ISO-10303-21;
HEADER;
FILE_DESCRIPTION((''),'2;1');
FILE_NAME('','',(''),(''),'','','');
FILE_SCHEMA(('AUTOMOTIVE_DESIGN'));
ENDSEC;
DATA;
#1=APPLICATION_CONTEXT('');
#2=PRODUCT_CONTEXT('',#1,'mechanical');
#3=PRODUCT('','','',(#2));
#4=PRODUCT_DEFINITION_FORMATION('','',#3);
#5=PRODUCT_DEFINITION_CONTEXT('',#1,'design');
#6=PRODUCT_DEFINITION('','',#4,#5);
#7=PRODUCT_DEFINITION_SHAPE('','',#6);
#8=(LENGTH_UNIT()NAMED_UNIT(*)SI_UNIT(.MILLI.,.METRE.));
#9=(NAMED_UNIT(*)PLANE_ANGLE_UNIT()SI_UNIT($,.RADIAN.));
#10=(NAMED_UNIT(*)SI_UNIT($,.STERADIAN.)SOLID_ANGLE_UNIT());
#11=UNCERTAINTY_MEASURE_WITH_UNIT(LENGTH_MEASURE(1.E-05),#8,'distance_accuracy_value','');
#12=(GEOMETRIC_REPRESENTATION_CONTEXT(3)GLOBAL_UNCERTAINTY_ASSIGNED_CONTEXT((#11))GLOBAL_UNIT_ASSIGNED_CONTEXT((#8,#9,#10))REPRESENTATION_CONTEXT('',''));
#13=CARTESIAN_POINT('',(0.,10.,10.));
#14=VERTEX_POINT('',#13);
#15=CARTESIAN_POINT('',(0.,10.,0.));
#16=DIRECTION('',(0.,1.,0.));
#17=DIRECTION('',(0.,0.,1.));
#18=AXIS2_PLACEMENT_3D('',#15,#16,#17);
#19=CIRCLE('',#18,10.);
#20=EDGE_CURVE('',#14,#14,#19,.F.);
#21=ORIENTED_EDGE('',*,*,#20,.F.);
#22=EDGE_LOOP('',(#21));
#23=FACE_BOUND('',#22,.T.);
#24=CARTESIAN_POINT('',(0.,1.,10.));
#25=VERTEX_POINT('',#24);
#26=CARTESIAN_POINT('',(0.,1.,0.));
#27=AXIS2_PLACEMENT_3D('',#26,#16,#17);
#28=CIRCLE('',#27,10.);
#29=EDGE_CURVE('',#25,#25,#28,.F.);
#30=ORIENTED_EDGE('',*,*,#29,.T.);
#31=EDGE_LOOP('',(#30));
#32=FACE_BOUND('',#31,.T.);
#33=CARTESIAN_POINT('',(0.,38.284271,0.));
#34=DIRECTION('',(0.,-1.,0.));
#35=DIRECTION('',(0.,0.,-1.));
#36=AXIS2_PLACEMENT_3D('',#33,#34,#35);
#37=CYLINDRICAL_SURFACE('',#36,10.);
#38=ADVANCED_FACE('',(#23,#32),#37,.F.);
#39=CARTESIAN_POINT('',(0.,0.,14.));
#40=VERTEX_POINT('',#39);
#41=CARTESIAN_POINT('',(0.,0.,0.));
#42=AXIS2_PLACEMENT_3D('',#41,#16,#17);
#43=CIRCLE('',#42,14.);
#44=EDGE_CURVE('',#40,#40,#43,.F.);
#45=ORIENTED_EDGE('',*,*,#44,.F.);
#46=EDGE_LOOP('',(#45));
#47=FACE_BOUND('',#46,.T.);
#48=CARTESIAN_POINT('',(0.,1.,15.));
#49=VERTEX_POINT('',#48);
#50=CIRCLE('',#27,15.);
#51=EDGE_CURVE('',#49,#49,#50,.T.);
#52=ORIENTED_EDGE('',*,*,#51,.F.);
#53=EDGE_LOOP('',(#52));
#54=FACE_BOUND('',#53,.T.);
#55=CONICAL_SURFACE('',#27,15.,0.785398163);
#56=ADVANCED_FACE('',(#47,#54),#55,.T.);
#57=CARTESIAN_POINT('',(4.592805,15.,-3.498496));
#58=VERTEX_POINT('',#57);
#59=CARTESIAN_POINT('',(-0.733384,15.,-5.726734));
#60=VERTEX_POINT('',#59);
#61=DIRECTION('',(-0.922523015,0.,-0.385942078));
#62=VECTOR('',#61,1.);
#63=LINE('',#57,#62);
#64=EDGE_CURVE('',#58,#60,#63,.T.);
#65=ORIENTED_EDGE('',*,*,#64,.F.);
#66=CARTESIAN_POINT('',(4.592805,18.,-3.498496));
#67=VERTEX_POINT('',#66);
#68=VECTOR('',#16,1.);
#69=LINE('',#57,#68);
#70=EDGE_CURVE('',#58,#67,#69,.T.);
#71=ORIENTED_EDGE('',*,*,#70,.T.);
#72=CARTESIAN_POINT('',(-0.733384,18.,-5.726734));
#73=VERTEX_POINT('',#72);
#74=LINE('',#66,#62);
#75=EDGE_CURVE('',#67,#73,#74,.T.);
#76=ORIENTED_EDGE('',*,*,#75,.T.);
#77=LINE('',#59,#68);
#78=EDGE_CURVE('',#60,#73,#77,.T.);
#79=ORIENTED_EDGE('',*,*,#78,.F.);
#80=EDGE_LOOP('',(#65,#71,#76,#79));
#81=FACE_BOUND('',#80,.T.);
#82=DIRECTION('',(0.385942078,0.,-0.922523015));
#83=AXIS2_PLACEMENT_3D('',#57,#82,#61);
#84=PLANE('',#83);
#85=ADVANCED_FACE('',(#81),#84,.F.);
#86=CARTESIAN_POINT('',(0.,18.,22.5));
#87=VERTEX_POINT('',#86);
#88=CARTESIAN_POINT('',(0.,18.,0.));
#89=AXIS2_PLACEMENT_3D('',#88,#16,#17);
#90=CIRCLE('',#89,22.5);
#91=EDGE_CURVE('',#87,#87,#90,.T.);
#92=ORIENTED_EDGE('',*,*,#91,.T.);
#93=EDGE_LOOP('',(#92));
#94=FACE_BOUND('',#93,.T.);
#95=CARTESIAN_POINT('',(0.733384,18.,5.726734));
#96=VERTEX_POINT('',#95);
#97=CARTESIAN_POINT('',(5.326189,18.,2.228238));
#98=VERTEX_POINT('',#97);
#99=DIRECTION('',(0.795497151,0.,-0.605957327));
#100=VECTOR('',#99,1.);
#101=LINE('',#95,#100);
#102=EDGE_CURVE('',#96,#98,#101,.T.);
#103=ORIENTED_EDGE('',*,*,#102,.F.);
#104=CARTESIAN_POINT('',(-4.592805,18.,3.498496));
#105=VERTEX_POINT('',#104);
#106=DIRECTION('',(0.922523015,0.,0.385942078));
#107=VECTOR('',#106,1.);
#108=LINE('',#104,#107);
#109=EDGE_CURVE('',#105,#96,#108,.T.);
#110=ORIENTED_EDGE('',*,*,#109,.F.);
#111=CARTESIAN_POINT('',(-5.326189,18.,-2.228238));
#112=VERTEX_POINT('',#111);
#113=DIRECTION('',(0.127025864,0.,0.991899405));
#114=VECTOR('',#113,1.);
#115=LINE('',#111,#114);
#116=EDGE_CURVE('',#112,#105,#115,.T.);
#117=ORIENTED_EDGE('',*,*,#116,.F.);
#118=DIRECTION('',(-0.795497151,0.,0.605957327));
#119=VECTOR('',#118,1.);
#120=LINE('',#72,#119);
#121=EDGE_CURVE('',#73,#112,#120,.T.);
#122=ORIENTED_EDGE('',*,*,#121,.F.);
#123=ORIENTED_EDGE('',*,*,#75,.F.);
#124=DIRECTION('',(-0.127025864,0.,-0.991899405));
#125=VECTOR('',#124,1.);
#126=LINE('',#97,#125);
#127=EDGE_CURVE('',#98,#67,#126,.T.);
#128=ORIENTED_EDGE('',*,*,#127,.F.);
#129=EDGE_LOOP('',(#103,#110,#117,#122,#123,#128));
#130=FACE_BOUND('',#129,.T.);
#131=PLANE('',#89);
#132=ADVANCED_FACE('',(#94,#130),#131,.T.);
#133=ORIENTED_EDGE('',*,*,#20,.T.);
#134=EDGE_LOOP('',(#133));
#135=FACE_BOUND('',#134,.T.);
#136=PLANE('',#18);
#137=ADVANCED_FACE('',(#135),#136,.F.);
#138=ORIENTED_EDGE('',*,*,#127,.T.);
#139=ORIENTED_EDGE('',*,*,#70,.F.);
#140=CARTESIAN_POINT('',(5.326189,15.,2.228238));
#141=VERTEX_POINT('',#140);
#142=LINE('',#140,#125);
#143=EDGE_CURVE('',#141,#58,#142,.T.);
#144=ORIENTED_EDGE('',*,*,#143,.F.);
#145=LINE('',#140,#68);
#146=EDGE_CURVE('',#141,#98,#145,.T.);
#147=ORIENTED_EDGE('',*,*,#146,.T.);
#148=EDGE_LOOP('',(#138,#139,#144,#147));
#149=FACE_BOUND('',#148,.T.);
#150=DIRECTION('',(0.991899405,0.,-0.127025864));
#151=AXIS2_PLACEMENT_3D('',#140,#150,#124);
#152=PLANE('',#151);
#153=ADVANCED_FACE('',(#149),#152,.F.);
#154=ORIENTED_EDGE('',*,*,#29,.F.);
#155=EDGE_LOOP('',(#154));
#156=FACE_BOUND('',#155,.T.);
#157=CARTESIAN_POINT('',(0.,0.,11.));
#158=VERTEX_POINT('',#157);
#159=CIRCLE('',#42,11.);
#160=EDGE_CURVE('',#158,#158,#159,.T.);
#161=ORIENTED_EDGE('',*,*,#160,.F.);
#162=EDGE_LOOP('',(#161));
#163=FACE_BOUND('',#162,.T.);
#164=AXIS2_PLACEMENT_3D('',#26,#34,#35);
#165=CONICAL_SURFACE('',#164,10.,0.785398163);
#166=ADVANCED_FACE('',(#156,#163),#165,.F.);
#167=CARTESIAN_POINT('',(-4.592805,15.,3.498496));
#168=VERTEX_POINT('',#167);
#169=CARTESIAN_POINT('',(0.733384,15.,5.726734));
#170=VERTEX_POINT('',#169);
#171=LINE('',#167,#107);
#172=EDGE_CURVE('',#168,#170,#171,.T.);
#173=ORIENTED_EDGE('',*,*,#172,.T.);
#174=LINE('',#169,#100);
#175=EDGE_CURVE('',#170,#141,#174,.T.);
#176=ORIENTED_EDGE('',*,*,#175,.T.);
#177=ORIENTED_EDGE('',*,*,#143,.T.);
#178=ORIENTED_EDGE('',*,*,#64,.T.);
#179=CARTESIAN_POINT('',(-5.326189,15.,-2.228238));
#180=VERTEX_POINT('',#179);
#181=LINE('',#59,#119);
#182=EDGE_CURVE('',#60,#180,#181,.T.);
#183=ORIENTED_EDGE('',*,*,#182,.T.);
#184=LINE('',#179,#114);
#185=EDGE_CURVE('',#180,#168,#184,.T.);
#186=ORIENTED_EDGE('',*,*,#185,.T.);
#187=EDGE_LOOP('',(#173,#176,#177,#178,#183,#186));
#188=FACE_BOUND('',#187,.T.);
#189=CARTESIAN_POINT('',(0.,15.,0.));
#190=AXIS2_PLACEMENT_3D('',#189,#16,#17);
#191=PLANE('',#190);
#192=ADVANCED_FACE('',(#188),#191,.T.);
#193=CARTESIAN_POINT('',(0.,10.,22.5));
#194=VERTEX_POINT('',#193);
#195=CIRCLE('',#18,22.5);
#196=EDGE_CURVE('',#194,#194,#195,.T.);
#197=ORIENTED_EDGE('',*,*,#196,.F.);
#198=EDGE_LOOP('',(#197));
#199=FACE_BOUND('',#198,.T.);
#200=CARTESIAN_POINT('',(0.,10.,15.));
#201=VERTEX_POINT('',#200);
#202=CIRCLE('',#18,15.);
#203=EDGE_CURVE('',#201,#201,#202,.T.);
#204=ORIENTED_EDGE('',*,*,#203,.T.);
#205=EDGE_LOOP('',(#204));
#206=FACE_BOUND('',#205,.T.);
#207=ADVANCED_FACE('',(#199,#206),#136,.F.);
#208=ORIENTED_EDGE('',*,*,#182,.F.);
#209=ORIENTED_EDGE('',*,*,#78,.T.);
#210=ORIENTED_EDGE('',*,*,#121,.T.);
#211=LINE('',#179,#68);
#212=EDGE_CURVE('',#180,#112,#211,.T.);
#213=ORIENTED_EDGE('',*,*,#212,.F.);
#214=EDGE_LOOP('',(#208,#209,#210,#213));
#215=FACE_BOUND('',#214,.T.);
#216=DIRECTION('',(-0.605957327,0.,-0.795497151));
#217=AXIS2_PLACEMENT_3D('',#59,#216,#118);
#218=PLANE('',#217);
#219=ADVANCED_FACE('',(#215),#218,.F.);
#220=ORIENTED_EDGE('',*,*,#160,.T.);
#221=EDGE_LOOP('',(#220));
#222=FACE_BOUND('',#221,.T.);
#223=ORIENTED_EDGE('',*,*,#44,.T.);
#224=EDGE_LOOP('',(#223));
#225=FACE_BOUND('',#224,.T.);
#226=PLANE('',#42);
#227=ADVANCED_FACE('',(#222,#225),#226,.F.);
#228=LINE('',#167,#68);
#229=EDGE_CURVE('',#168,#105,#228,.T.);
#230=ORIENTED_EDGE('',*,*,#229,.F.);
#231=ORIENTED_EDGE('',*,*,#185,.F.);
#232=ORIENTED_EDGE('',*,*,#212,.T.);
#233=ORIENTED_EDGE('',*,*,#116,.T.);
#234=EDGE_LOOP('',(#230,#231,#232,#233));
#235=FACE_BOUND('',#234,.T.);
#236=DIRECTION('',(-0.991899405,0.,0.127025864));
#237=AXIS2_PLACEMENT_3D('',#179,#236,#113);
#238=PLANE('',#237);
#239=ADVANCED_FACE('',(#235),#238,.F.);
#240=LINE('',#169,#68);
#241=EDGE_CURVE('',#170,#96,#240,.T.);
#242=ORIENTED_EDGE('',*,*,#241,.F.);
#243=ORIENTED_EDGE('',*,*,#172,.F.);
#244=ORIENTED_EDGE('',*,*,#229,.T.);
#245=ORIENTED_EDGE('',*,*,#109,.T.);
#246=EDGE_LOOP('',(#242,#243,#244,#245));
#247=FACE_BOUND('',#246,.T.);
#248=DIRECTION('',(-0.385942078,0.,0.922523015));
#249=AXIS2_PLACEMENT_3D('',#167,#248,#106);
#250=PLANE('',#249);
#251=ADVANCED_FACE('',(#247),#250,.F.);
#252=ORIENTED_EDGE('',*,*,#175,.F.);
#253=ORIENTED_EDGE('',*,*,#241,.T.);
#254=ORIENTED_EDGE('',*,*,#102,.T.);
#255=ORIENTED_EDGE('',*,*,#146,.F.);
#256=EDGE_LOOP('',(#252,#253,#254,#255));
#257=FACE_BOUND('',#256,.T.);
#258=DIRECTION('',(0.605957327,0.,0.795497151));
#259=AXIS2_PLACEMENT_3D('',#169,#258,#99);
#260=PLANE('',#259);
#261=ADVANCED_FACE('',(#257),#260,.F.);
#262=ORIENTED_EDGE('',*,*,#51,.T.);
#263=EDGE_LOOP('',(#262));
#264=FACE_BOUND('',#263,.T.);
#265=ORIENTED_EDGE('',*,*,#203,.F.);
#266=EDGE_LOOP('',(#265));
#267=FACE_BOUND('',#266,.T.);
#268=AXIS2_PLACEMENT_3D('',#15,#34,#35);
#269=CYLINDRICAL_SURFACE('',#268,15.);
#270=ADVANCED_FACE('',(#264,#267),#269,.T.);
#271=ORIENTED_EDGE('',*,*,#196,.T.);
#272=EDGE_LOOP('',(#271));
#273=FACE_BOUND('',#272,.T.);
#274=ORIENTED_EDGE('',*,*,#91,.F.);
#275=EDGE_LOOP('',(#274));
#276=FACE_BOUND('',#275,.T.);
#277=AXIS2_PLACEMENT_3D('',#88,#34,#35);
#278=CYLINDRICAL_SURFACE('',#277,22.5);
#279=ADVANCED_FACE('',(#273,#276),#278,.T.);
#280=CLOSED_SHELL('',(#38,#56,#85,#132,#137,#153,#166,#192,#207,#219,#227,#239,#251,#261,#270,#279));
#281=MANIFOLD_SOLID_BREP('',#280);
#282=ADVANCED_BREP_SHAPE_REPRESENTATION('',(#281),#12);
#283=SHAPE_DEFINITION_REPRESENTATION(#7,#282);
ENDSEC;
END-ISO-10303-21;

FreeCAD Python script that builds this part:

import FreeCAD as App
import Part
import Sketcher


def edges_at(feature, points):
    """Names of the edges that pass closest to the given points."""
    edges = feature.Shape.Edges
    near = lambda p: min(range(len(edges)), key=lambda i: edges[i].distToShape(Part.Vertex(*p))[0])
    return sorted({f"Edge{near(p) + 1}" for p in points})


def add_polygon(sketch, points):
    """Adds a closed chain of lines whose ends are joined by coincident constraints."""
    first, n = sketch.GeometryCount, len(points)
    for a, b in zip(points, points[1:] + points[:1]):
        sketch.addGeometry(Part.LineSegment(App.Vector(*a, 0), App.Vector(*b, 0)), False)
    for i in range(n):
        sketch.addConstraint(Sketcher.Constraint("Coincident", first + i, 2, first + (i + 1) % n, 1))

doc = App.newDocument("Part")
body = doc.addObject("PartDesign::Body", "Body")

# Sketch on XZ plane
sketch1 = doc.addObject("Sketcher::SketchObject", "Sketch")
body.addObject(sketch1)
sketch1.AttachmentSupport = (doc.XZ_Plane, [""])
sketch1.MapMode = "FlatFace"
sketch1.addGeometry(Part.Circle(App.Vector(0, 0, 0), App.Vector(0, 0, 1), 15), False)
sketch1.addConstraint([
    Sketcher.Constraint("Coincident", 0, 3, -1, 1),
    Sketcher.Constraint("Diameter", 0, 30.0),
])
pad1 = doc.addObject("PartDesign::Pad", "Pad")
body.addObject(pad1)
pad1.Profile = sketch1
pad1.Length = 10
pad1.Reversed = True

# Sketch on XZ plane
sketch2 = doc.addObject("Sketcher::SketchObject", "Sketch001")
body.addObject(sketch2)
sketch2.AttachmentSupport = (doc.XZ_Plane, [""])
sketch2.MapMode = "FlatFace"
sketch2.AttachmentOffset = App.Placement(App.Vector(0, 0, -10), App.Rotation())
sketch2.addGeometry(Part.Circle(App.Vector(0, 0, 0), App.Vector(0, 0, 1), 22.5), False)
sketch2.addConstraint([
    Sketcher.Constraint("Coincident", 0, 3, -1, 1),
    Sketcher.Constraint("Diameter", 0, 45.0),
])
pad2 = doc.addObject("PartDesign::Pad", "Pad001")
body.addObject(pad2)
pad2.Profile = sketch2
pad2.Length = 8
pad2.Reversed = True
doc.recompute()

chamfer = doc.addObject("PartDesign::Chamfer", "Chamfer")
body.addObject(chamfer)
chamfer.Base = (pad2, edges_at(pad2, [(0, 0, -15)]))
chamfer.Size = 1

# Sketch on XZ plane
sketch3 = doc.addObject("Sketcher::SketchObject", "Sketch002")
body.addObject(sketch3)
sketch3.AttachmentSupport = (doc.XZ_Plane, [""])
sketch3.MapMode = "FlatFace"
sketch3.addGeometry(Part.Circle(App.Vector(0, 0, 0), App.Vector(0, 0, 1), 10), False)
sketch3.addConstraint([
    Sketcher.Constraint("Coincident", 0, 3, -1, 1),
    Sketcher.Constraint("Diameter", 0, 20.0),
])
pocket1 = doc.addObject("PartDesign::Pocket", "Pocket")
body.addObject(pocket1)
pocket1.Profile = sketch3
pocket1.Length = 10

# Sketch on XZ plane
sketch4 = doc.addObject("Sketcher::SketchObject", "Sketch003")
body.addObject(sketch4)
sketch4.AttachmentSupport = (doc.XZ_Plane, [""])
sketch4.MapMode = "FlatFace"
sketch4.AttachmentOffset = App.Placement(App.Vector(0, 0, -18), App.Rotation())
add_polygon(sketch4, [(5.326189, 2.228238), (4.592805, -3.498496), (-0.733384, -5.726734), (-5.326189, -2.228238), (-4.592805, 3.498496), (0.733384, 5.726734)])  # lines 0-5
sketch4.addConstraint([
    Sketcher.Constraint("Symmetric", 0, 2, 3, 2, -1, 1),
    Sketcher.Constraint("Symmetric", 1, 2, 4, 2, -1, 1),
    Sketcher.Constraint("Symmetric", 2, 2, 5, 2, -1, 1),
    Sketcher.Constraint("Equal", 0, 1),
    Sketcher.Constraint("Equal", 1, 2),
    Sketcher.Constraint("DistanceX", 2, 2, -1, 1, 5.326189),
    Sketcher.Constraint("DistanceX", 1, 2, 0, 2, 5.326189),
    Sketcher.Constraint("DistanceY", 0, 2, 2, 2, 1.270259),
    Sketcher.Constraint("DistanceX", 3, 2, 1, 2, 3.859421),
])
pocket2 = doc.addObject("PartDesign::Pocket", "Pocket001")
body.addObject(pocket2)
pocket2.Profile = sketch4
pocket2.Length = 3
pocket2.Reversed = True
doc.recompute()

chamfer2 = doc.addObject("PartDesign::Chamfer", "Chamfer001")
body.addObject(chamfer2)
chamfer2.Base = (pocket2, edges_at(pocket2, [(0, 0, 10)]))
chamfer2.Size = 1

doc.recompute()
